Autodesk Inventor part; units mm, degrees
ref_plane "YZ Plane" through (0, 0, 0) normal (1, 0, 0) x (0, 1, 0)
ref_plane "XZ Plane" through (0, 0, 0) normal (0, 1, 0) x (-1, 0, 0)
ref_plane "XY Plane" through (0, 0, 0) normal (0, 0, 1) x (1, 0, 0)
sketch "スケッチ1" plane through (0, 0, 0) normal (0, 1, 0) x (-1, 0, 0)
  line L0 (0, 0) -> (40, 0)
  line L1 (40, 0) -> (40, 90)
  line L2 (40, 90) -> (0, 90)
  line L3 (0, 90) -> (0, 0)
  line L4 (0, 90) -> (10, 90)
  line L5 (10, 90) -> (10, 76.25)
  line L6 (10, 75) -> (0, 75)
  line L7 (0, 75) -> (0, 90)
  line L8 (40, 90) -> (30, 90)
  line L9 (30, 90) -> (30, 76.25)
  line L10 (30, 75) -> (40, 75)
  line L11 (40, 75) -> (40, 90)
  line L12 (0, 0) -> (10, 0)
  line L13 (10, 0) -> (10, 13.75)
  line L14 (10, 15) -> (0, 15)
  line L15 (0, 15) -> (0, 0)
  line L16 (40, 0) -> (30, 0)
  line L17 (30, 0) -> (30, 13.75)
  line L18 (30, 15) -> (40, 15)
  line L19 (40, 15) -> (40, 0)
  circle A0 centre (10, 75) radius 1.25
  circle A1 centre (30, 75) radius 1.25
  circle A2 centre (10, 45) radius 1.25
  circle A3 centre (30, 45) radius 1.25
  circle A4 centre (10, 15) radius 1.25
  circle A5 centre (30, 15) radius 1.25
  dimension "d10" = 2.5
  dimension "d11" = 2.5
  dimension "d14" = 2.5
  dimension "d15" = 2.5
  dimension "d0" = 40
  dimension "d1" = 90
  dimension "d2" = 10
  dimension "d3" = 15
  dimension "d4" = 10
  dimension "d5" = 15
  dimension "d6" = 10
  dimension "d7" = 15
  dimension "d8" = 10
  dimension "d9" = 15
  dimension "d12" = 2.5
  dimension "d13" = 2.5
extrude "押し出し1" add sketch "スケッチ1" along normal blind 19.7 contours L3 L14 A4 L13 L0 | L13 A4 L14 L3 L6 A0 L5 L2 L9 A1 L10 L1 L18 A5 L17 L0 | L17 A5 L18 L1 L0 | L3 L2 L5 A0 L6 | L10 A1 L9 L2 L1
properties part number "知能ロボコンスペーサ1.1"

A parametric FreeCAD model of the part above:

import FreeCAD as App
import Part
import Sketcher


def add_polygon(sketch, points):
    """Adds a closed chain of lines whose ends are joined by coincident constraints."""
    first, n = sketch.GeometryCount, len(points)
    for a, b in zip(points, points[1:] + points[:1]):
        sketch.addGeometry(Part.LineSegment(App.Vector(*a, 0), App.Vector(*b, 0)), False)
    for i in range(n):
        sketch.addConstraint(Sketcher.Constraint("Coincident", first + i, 2, first + (i + 1) % n, 1))

doc = App.newDocument("Part")
body = doc.addObject("PartDesign::Body", "Body")

# Sketch on XZ plane
sketch1 = body.newObject("Sketcher::SketchObject", "Sketch")
sketch1.AttachmentSupport = (doc.getObject("XZ_Plane"), [""])
sketch1.MapMode = "FlatFace"
add_polygon(sketch1, [(0, 0), (-40, 0), (-40, 90), (0, 90)])  # lines 0-3
sketch1.addGeometry(Part.Circle(App.Vector(-10, 15, 0), App.Vector(0, 0, 1), 1.25), False)  # 4
sketch1.addGeometry(Part.Circle(App.Vector(-10, 45, 0), App.Vector(0, 0, 1), 1.25), False)  # 5
sketch1.addGeometry(Part.Circle(App.Vector(-30, 45, 0), App.Vector(0, 0, 1), 1.25), False)  # 6
sketch1.addGeometry(Part.Circle(App.Vector(-10, 75, 0), App.Vector(0, 0, 1), 1.25), False)  # 7
sketch1.addGeometry(Part.Circle(App.Vector(-30, 75, 0), App.Vector(0, 0, 1), 1.25), False)  # 8
sketch1.addGeometry(Part.Circle(App.Vector(-30, 15, 0), App.Vector(0, 0, 1), 1.25), False)  # 9
sketch1.addConstraint([
    Sketcher.Constraint("Horizontal", 0),
    Sketcher.Constraint("Vertical", 1),
    Sketcher.Constraint("Horizontal", 2),
    Sketcher.Constraint("Vertical", 3),
    Sketcher.Constraint("Coincident", 3, 2, -1, 1),
    Sketcher.Constraint("Equal", 4, 5),
    Sketcher.Constraint("Equal", 5, 6),
    Sketcher.Constraint("Equal", 6, 7),
    Sketcher.Constraint("Equal", 7, 8),
    Sketcher.Constraint("Equal", 8, 9),
    Sketcher.Constraint("Horizontal", 5, 3, 6, 3),
    Sketcher.Constraint("Horizontal", 7, 3, 8, 3),
    Sketcher.Constraint("Horizontal", 4, 3, 9, 3),
    Sketcher.Constraint("Vertical", 4, 3, 5, 3),
    Sketcher.Constraint("Vertical", 5, 3, 7, 3),
    Sketcher.Constraint("Vertical", 6, 3, 8, 3),
    Sketcher.Constraint("Vertical", 8, 3, 9, 3),
    Sketcher.Constraint("Diameter", 4, 2.5),
    Sketcher.Constraint("DistanceX", 0, 2, 0, 1, 40.0),
    Sketcher.Constraint("DistanceY", 1, 1, 1, 2, 90.0),
    Sketcher.Constraint("DistanceX", 4, 3, -1, 1, 10.0),
    Sketcher.Constraint("DistanceY", -1, 1, 4, 3, 15.0),
    Sketcher.Constraint("DistanceX", 0, 2, 9, 3, 10.0),
    Sketcher.Constraint("DistanceY", 8, 3, 1, 2, 15.0),
    Sketcher.Constraint("DistanceY", -1, 1, 5, 3, 45.0),
])
pad1 = body.newObject("PartDesign::Pad", "Pad")
pad1.Profile = sketch1
pad1.Length = 19.7
pad1.Reversed = True

doc.recompute()
